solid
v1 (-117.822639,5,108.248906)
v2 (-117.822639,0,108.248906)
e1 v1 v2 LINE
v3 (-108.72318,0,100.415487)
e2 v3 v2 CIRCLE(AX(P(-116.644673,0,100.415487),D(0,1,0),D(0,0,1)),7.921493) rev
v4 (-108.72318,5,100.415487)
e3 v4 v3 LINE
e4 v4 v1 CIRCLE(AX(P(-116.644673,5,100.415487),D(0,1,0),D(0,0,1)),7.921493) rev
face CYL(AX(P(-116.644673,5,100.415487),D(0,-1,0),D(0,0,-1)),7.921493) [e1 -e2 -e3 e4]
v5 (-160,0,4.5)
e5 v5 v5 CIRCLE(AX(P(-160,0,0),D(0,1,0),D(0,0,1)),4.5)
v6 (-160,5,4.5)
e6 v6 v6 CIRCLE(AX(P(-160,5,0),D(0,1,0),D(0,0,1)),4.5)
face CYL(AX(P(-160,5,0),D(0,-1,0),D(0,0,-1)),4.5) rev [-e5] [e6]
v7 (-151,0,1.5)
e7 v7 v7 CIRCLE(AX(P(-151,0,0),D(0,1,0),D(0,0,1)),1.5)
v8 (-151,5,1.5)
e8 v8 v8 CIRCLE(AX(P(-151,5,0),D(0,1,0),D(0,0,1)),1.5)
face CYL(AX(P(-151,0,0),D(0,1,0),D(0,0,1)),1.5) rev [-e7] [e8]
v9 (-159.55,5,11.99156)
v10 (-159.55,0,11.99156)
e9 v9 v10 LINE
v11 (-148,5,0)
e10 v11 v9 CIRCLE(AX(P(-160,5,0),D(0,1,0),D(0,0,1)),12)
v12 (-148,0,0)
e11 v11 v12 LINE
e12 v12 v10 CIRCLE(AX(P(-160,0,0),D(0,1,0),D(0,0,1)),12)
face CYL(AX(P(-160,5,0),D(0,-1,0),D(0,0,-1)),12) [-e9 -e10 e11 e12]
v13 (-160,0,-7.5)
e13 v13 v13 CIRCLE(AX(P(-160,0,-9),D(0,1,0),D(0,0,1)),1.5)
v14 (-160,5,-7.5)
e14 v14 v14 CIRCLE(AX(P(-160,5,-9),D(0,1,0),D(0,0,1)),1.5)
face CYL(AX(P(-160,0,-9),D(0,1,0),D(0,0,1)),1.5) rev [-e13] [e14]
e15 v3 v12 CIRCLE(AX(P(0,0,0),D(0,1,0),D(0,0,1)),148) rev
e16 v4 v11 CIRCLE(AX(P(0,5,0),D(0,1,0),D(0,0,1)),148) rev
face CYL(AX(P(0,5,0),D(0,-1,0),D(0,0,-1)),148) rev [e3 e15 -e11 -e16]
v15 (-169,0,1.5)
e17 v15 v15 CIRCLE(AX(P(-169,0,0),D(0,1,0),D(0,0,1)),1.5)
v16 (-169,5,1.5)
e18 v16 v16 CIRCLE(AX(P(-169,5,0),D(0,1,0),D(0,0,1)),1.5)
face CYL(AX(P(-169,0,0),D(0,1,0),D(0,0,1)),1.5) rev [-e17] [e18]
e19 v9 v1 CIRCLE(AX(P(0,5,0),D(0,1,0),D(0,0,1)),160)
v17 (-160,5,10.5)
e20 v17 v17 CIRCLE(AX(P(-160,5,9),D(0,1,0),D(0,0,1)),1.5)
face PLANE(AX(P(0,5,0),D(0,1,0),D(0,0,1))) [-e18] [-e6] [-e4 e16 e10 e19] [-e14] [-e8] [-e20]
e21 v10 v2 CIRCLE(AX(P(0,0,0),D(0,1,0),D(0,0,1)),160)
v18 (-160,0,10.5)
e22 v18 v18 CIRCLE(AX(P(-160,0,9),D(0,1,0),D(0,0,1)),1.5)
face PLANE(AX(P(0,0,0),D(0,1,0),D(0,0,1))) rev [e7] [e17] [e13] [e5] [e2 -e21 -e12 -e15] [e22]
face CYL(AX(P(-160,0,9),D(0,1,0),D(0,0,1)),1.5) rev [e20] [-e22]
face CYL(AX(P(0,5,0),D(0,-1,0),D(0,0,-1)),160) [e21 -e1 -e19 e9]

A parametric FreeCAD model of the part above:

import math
import FreeCAD as App
import Part
import Sketcher
from FreeCAD import Vector

doc = App.newDocument("Part")
body = doc.addObject("PartDesign::Body", "Body")

# Sketch on XZ plane
sketch1 = body.newObject("Sketcher::SketchObject", "Sketch")
sketch1.AttachmentSupport = (doc.getObject("XZ_Plane"), [""])
sketch1.MapMode = "FlatFace"
sketch1.addGeometry([
    Part.ArcOfCircle(Part.Circle(Vector(-160, 0, 0), Vector(0, 0, 1), 12), math.radians(88), math.radians(360)),  # 0
    Part.ArcOfCircle(Part.Circle(Vector(0, 0, 0), Vector(0, 0, 1), 160), math.radians(137), math.radians(176)),  # 1
    Part.ArcOfCircle(Part.Circle(Vector(-116.6, 100.4, 0), Vector(0, 0, 1), 7.9), math.radians(0), math.radians(99)),  # 2
    Part.ArcOfCircle(Part.Circle(Vector(0, 0, 0), Vector(0, 0, 1), 148), math.radians(137), math.radians(180)),  # 3
    Part.Circle(Vector(-160, 0, 0), Vector(0, 0, 1), 4.5),  # 4
], False)
sketch1.addConstraint([
    Sketcher.Constraint("Coincident", 0, 1, 1, 2),
    Sketcher.Constraint("Coincident", 1, 1, 2, 2),
    Sketcher.Constraint("Coincident", 2, 1, 3, 1),
    Sketcher.Constraint("Tangent", 3, 2, 0, 2),
    Sketcher.Constraint("Coincident", 1, 3, -1, 1),
    Sketcher.Constraint("Coincident", 3, 3, -1, 1),
    Sketcher.Constraint("Coincident", 4, 3, 0, 3),
    Sketcher.Constraint("PointOnObject", 0, 3, -1),
    Sketcher.Constraint("Diameter", 4, 9.0),
    Sketcher.Constraint("Radius", 0, 12.0),
    Sketcher.Constraint("Radius", 1, 160.0),
    Sketcher.Constraint("Radius", 3, 148.0),
    Sketcher.Constraint("Radius", 2, 7.921493),
    Sketcher.Constraint("DistanceX", 1, 1, -1, 1, 117.822639),
    Sketcher.Constraint("DistanceX", 2, 1, -1, 1, 108.72318),
])
pad1 = body.newObject("PartDesign::Pad", "Pad")
pad1.Profile = sketch1
pad1.Length = 5
pad1.Reversed = True

# Sketch on XZ plane
sketch2 = body.newObject("Sketcher::SketchObject", "Sketch001")
sketch2.AttachmentSupport = (doc.getObject("XZ_Plane"), [""])
sketch2.MapMode = "FlatFace"
sketch2.AttachmentOffset = App.Placement(Vector(0, 0, -5), App.Rotation())
sketch2.addGeometry([
    Part.Circle(Vector(-151, 0, 0), Vector(0, 0, 1), 1.5),
    Part.Circle(Vector(-160, 9, 0), Vector(0, 0, 1), 1.5),
    Part.Circle(Vector(-169, 0, 0), Vector(0, 0, 1), 1.5),
    Part.Circle(Vector(-160, -9, 0), Vector(0, 0, 1), 1.5),
], False)
sketch2.addConstraint([
    Sketcher.Constraint("Equal", 0, 1),
    Sketcher.Constraint("Equal", 1, 2),
    Sketcher.Constraint("Equal", 2, 3),
    Sketcher.Constraint("Symmetric", 1, 3, 3, 3, -1),
    Sketcher.Constraint("PointOnObject", 0, 3, -1),
    Sketcher.Constraint("PointOnObject", 2, 3, -1),
    Sketcher.Constraint("Diameter", 0, 3.0),
    Sketcher.Constraint("DistanceX", 0, 3, -1, 1, 151.0),
    Sketcher.Constraint("DistanceX", 1, 3, -1, 1, 160.0),
    Sketcher.Constraint("DistanceY", -1, 1, 1, 3, 9.0),
    Sketcher.Constraint("DistanceX", 2, 3, -1, 1, 169.0),
])
pocket1 = body.newObject("PartDesign::Pocket", "Pocket")
pocket1.Profile = sketch2
pocket1.Length = 5
pocket1.Reversed = True

doc.recompute()
